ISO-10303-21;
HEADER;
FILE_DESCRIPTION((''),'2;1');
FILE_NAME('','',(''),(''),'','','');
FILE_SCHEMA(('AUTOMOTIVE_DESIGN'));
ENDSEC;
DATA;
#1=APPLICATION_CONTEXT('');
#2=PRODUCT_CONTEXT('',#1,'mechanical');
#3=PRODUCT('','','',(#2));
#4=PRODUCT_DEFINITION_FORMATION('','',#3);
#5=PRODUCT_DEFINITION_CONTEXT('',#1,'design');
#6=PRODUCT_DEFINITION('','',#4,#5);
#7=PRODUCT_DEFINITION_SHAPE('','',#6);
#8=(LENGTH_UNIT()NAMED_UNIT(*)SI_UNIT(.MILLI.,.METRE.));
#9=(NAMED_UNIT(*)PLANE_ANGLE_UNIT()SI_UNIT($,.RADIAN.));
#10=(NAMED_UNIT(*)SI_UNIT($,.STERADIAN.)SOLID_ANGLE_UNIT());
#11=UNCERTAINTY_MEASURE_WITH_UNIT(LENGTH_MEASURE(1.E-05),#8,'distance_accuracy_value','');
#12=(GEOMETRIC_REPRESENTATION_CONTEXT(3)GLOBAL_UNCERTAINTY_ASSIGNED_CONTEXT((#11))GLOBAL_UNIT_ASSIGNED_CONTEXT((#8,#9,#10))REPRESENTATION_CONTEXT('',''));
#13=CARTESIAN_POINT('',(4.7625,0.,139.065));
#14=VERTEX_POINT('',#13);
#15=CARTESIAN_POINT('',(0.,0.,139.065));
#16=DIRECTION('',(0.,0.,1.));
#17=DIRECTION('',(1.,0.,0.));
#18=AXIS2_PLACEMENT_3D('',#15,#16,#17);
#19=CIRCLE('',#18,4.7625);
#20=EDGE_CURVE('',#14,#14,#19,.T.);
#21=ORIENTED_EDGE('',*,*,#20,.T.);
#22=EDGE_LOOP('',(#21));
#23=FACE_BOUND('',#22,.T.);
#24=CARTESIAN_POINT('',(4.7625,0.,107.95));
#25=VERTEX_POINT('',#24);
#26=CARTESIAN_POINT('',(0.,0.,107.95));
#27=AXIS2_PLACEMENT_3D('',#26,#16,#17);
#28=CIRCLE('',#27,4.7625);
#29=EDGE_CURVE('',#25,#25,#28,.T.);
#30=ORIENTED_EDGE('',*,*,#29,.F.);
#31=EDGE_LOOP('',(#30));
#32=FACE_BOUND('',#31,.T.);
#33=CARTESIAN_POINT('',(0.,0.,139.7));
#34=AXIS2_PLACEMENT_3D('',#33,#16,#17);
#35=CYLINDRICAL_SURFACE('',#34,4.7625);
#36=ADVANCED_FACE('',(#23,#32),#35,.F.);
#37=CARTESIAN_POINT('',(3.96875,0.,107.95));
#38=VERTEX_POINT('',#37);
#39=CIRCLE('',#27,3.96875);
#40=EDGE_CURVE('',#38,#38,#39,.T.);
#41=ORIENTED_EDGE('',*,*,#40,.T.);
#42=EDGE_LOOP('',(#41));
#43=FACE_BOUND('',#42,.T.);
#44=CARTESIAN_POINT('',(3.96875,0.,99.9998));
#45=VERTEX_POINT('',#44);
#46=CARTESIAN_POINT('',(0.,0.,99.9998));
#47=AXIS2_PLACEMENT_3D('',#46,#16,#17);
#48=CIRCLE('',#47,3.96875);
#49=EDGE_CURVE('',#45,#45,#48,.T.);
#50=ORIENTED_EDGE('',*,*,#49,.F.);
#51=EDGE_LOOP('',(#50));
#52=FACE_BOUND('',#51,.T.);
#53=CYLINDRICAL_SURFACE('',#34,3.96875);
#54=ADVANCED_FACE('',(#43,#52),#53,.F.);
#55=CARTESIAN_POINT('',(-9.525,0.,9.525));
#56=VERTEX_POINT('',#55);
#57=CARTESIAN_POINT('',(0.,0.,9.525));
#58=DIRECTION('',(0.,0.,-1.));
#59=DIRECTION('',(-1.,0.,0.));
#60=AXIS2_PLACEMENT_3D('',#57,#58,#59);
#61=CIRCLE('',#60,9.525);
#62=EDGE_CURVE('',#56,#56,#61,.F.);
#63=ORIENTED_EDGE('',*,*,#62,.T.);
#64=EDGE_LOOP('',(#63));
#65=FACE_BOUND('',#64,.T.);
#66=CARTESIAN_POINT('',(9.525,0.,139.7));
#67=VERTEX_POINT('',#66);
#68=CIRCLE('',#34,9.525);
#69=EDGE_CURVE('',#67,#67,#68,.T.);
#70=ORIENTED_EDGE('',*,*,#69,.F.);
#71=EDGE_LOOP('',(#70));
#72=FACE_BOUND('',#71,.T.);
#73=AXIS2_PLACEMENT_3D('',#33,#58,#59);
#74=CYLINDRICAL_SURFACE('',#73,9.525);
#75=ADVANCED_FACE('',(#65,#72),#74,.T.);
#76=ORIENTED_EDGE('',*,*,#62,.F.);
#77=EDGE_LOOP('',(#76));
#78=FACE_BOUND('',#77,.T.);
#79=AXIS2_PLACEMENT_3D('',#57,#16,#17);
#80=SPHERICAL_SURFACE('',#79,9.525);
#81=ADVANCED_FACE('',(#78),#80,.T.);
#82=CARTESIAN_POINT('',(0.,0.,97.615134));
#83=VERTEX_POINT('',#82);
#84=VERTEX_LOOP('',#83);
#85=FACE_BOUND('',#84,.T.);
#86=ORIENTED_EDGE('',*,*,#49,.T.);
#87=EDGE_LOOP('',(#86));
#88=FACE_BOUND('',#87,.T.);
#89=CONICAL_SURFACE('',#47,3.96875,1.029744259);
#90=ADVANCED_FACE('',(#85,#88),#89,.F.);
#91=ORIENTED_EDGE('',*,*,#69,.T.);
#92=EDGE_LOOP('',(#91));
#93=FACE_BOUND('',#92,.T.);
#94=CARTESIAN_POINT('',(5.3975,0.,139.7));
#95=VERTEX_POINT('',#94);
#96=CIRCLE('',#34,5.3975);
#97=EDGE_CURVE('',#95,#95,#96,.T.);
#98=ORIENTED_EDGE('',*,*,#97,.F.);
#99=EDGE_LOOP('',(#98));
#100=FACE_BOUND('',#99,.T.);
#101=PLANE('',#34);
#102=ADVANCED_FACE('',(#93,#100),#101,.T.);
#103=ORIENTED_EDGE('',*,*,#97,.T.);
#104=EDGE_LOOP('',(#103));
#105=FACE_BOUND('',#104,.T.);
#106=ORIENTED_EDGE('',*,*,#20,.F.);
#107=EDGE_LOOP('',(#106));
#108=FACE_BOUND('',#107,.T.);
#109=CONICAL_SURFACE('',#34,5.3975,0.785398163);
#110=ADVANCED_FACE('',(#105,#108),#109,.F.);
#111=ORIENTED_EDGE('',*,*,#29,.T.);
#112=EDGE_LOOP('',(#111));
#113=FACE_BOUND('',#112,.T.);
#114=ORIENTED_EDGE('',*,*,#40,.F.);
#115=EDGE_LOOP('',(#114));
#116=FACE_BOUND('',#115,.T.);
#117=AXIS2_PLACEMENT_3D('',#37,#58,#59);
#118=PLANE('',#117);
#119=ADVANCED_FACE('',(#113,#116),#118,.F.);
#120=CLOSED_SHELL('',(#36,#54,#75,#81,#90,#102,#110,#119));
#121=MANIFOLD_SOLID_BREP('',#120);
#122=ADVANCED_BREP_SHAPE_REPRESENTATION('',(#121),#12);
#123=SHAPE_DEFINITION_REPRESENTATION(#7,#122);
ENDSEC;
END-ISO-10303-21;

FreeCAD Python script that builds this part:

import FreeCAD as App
import Part
import Sketcher
from FreeCAD import Vector
Q = App.Units.Quantity


def edges_at(feature, points):
    """Names of the edges that pass closest to the given points."""
    edges = feature.Shape.Edges
    near = lambda p: min(range(len(edges)), key=lambda i: edges[i].distToShape(Part.Vertex(*p))[0])
    return sorted({f"Edge{near(p) + 1}" for p in points})


def add_polygon(sketch, points):
    """Adds a closed chain of lines whose ends are joined by coincident constraints."""
    first, n = sketch.GeometryCount, len(points)
    for a, b in zip(points, points[1:] + points[:1]):
        sketch.addGeometry(Part.LineSegment(App.Vector(*a, 0), App.Vector(*b, 0)), False)
    for i in range(n):
        sketch.addConstraint(Sketcher.Constraint("Coincident", first + i, 2, first + (i + 1) % n, 1))

doc = App.newDocument("Part")
params = doc.addObject("Spreadsheet::Sheet", "Params")
for row, (alias, value) in enumerate([
    ("sketch1_diameter", "0.75 in"),
    ("pad1_length", "5.5 in"),
    ("fillet_radius", "0.375 in"),
    ("sketch2_width", "0.03125 in"),
    ("sketch2_height", "1.225 in"),
    ("sketch2_height2", "0.313 in"),
    ("groove_angle", "360 deg"),
], start=1):
    params.set(f"A{row}", alias)
    params.set(f"B{row}", "=" + value)
    params.setAlias(f"B{row}", alias)

body = doc.addObject("PartDesign::Body", "Body")

# Sketch on XY plane
sketch1 = doc.addObject("Sketcher::SketchObject", "Sketch")
body.addObject(sketch1)
sketch1.AttachmentSupport = (doc.XY_Plane, [""])
sketch1.MapMode = "FlatFace"
sketch1.addGeometry(Part.Circle(Vector(0, 0, 0), Vector(0, 0, 1), 9.525), False)
sketch1.addConstraint([
    Sketcher.Constraint("Coincident", 0, 3, -1, 1),
    Sketcher.Constraint("Diameter", 0, Q("0.75 in")),
])
sketch1.setExpression("Constraints[1]", "Params.sketch1_diameter")
pad1 = doc.addObject("PartDesign::Pad", "Pad")
body.addObject(pad1)
pad1.Profile = sketch1
pad1.setExpression("Length", "Params.pad1_length")
doc.recompute()

fillet = doc.addObject("PartDesign::Fillet", "Fillet")
body.addObject(fillet)
fillet.Base = (pad1, edges_at(pad1, [(-9.525, 0, 0)]))
fillet.setExpression("Radius", "Params.fillet_radius")

# Sketch on YZ plane
sketch2 = doc.addObject("Sketcher::SketchObject", "Sketch001")
body.addObject(sketch2)
sketch2.AttachmentSupport = (doc.YZ_Plane, [""])
sketch2.MapMode = "FlatFace"
add_polygon(sketch2, [(0, 97.615134), (0, 139.7), (-5.3975, 139.7), (-4.7625, 139.065), (-4.7625, 107.95), (-3.96875, 107.95), (-3.96875, 99.9998)])  # lines 0-6
sketch2.addConstraint([
    Sketcher.Constraint("Vertical", 0),
    Sketcher.Constraint("Horizontal", 1),
    Sketcher.Constraint("Vertical", 3),
    Sketcher.Constraint("Horizontal", 4),
    Sketcher.Constraint("Vertical", 5),
    Sketcher.Constraint("PointOnObject", 0, 2, -2),
    Sketcher.Constraint("Angle", 2, Q("-45 deg")),
    Sketcher.Constraint("Angle", 6, Q("-31 deg")),
    Sketcher.Constraint("DistanceY", -1, 1, 0, 2, Q("5.5 in")),
    Sketcher.Constraint("DistanceX", 4, 1, 4, 2, Q("0.03125 in")),
    Sketcher.Constraint("DistanceY", 3, 2, 3, 1, Q("1.225 in")),
    Sketcher.Constraint("DistanceY", 5, 2, 5, 1, Q("0.313 in")),
    Sketcher.Constraint("DistanceY", -1, 1, 3, 2, Q("4.25 in")),
    Sketcher.Constraint("DistanceX", 1, 2, 1, 1, Q("0.2125 in")),
])
sketch2.setExpression("Constraints[16]", "Params.sketch2_width")
sketch2.setExpression("Constraints[17]", "Params.sketch2_height")
sketch2.setExpression("Constraints[18]", "Params.sketch2_height2")
groove = doc.addObject("PartDesign::Groove", "Groove")
body.addObject(groove)
groove.Profile = sketch2
groove.ReferenceAxis = (sketch2, ["V_Axis"])
groove.setExpression("Angle", "Params.groove_angle")

doc.recompute()
